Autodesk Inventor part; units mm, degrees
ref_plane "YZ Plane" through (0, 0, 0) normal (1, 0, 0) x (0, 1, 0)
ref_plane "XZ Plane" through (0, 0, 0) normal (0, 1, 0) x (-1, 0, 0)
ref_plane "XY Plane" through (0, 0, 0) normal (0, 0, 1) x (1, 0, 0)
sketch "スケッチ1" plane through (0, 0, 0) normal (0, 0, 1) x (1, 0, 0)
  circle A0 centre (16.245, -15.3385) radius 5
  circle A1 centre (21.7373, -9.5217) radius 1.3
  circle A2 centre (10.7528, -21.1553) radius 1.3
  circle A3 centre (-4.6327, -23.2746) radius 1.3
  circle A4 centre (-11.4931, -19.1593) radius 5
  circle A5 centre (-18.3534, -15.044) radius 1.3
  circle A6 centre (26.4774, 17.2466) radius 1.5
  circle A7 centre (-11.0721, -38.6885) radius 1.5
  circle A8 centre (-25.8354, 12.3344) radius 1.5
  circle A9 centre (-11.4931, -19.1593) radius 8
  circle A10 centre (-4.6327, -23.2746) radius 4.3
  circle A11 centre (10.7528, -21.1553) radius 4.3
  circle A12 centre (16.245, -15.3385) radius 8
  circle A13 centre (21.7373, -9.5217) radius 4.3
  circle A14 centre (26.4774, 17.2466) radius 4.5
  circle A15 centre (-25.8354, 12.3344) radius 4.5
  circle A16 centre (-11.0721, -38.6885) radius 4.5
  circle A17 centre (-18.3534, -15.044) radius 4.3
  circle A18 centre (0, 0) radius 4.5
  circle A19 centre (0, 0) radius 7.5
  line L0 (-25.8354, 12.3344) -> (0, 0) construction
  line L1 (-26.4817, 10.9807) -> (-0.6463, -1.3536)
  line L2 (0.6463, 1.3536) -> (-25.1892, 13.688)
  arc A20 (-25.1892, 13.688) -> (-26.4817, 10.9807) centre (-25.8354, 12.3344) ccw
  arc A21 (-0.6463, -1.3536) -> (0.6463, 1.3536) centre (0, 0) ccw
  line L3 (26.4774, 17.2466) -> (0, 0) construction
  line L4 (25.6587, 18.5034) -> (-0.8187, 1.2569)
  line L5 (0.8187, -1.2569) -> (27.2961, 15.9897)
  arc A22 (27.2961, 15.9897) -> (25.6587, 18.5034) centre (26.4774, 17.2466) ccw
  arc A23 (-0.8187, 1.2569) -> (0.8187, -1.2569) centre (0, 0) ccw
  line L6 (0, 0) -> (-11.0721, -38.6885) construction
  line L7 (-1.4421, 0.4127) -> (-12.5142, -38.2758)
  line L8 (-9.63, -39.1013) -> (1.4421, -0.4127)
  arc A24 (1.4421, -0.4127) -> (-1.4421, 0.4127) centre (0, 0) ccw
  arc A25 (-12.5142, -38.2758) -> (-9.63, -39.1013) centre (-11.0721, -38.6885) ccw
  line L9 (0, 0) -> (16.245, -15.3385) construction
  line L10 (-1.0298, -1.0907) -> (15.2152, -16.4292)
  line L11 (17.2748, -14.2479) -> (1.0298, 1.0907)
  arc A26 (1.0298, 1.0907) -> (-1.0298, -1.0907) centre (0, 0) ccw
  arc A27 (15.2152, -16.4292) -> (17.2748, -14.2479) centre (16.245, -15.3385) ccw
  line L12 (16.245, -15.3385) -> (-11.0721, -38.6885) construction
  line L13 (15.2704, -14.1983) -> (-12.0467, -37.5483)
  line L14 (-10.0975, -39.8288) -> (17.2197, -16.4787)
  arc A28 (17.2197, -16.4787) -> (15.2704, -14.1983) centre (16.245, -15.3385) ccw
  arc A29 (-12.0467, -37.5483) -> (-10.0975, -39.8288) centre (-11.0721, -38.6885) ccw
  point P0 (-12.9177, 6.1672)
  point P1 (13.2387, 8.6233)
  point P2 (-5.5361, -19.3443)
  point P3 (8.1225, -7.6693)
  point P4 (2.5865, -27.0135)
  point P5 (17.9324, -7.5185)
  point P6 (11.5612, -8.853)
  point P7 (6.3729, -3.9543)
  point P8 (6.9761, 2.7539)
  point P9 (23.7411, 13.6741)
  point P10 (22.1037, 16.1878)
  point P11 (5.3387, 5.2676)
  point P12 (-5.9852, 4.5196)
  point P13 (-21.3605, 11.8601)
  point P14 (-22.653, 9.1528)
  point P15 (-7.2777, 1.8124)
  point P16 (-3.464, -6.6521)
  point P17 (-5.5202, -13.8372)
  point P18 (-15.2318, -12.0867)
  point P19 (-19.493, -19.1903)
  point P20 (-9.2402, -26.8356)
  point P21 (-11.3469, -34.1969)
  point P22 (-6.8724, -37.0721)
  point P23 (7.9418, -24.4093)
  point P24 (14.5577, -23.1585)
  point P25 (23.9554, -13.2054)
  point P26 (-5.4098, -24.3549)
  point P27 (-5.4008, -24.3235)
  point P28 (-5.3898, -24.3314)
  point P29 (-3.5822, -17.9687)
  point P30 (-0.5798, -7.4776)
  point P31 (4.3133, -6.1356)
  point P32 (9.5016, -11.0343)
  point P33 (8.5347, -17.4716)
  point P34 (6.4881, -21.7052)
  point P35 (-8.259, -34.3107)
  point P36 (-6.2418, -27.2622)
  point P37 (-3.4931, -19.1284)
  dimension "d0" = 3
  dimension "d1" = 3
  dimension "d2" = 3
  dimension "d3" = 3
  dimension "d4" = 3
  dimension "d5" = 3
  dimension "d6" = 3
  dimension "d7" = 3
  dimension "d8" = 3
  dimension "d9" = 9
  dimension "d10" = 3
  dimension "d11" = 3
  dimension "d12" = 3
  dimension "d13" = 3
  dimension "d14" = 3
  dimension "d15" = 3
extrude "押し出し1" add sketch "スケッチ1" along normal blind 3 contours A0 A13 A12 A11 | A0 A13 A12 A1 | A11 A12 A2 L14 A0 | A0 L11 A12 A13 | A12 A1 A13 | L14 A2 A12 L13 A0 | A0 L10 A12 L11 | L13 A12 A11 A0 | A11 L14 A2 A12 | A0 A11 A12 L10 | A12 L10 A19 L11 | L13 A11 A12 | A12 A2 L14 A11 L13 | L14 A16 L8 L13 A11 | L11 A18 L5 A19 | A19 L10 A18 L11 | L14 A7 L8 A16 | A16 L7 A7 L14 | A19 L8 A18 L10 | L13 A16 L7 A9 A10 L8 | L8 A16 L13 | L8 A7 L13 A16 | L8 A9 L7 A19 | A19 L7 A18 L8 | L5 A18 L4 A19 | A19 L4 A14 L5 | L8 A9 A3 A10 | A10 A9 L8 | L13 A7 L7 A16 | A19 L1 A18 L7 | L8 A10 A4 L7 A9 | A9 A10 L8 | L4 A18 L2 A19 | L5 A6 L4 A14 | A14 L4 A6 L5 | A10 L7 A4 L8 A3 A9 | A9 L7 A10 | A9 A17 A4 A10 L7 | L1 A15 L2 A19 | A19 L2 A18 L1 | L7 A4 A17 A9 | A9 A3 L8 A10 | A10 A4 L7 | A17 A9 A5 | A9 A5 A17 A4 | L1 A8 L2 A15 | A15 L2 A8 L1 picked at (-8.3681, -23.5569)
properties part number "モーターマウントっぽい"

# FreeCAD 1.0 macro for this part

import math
import FreeCAD as App
import Part
import Sketcher

V = App.Vector
Q = App.Units.Quantity

doc = App.newDocument("Part")
body = doc.addObject("PartDesign::Body", "Body")

# Sketch on XY plane
sketch1 = body.newObject("Sketcher::SketchObject", "Sketch")
sketch1.AttachmentSupport = (doc.getObject("XY_Plane"), [""])
sketch1.MapMode = "FlatFace"
sketch1.addGeometry([
    Part.ArcOfCircle(Part.Circle(V(21.737, -9.522, 0), V(0, 0, 1), 4.3), math.radians(-59), math.radians(152)),  # 0
    Part.ArcOfCircle(Part.Circle(V(16.245, -15.338, 0), V(0, 0, 1), 8), math.radians(78), math.radians(126)),  # 1
    Part.LineSegment(V(11.561, -8.853, 0), V(6.373, -3.954, 0)),  # 2
    Part.ArcOfCircle(Part.Circle(V(0, 0, 0), V(0, 0, 1), 7.5), math.radians(-32), math.radians(22)),  # 3
    Part.LineSegment(V(6.976, 2.754, 0), V(23.741, 13.674, 0)),  # 4
    Part.ArcOfCircle(Part.Circle(V(26.477, 17.247, 0), V(0, 0, 1), 4.5), math.radians(-127), math.radians(194)),  # 5
    Part.LineSegment(V(22.104, 16.188, 0), V(5.339, 5.268, 0)),  # 6
    Part.ArcOfCircle(Part.Circle(V(0, 0, 0), V(0, 0, 1), 7.5), math.radians(45), math.radians(143)),  # 7
    Part.LineSegment(V(-5.985, 4.52, 0), V(-21.36, 11.86, 0)),  # 8
    Part.ArcOfCircle(Part.Circle(V(-25.835, 12.334, 0), V(0, 0, 1), 4.5), math.radians(-6), math.radians(315)),  # 9
    Part.LineSegment(V(-22.653, 9.153, 0), V(-7.278, 1.812, 0)),  # 10
    Part.ArcOfCircle(Part.Circle(V(0, 0, 0), V(0, 0, 1), 7.5), math.radians(166), math.radians(242)),  # 11
    Part.LineSegment(V(-3.464, -6.652, 0), V(-5.52, -13.837, 0)),  # 12
    Part.ArcOfCircle(Part.Circle(V(-11.493, -19.159, 0), V(0, 0, 1), 8), math.radians(42), math.radians(118)),  # 13
    Part.ArcOfCircle(Part.Circle(V(-18.353, -15.044, 0), V(0, 0, 1), 4.3), math.radians(43), math.radians(255)),  # 14
    Part.ArcOfCircle(Part.Circle(V(-11.493, -19.159, 0), V(0, 0, 1), 8), math.radians(-180), math.radians(-74)),  # 15
    Part.LineSegment(V(-9.24, -26.836, 0), V(-11.347, -34.197, 0)),  # 16
    Part.ArcOfCircle(Part.Circle(V(-11.072, -38.688, 0), V(0, 0, 1), 4.5), math.radians(94), math.radians(381)),  # 17
    Part.LineSegment(V(-6.872, -37.072, 0), V(7.942, -24.409, 0)),  # 18
    Part.ArcOfCircle(Part.Circle(V(10.753, -21.155, 0), V(0, 0, 1), 4.3), math.radians(-131), math.radians(-28)),  # 19
    Part.ArcOfCircle(Part.Circle(V(16.245, -15.338, 0), V(0, 0, 1), 8), math.radians(-102), math.radians(15)),  # 20
    Part.Circle(V(16.245, -15.338, 0), V(0, 0, 1), 5),  # 21
    Part.Circle(V(21.737, -9.522, 0), V(0, 0, 1), 1.3),  # 22
    Part.Circle(V(10.753, -21.155, 0), V(0, 0, 1), 1.3),  # 23
    Part.ArcOfCircle(Part.Circle(V(16.245, -15.338, 0), V(0, 0, 1), 8), math.radians(147), math.radians(195)),  # 24
    Part.ArcOfCircle(Part.Circle(V(10.753, -21.155, 0), V(0, 0, 1), 4.3), math.radians(121), math.radians(187)),  # 25
    Part.LineSegment(V(6.488, -21.705, 0), V(-8.259, -34.311, 0)),  # 26
    Part.LineSegment(V(-8.259, -34.311, 0), V(-6.242, -27.262, 0)),  # 27
    Part.ArcOfCircle(Part.Circle(V(-4.633, -23.275, 0), V(0, 0, 1), 4.3), math.radians(-112), math.radians(75)),  # 28
    Part.ArcOfCircle(Part.Circle(V(-11.493, -19.159, 0), V(0, 0, 1), 8), math.radians(0.22), math.radians(8.56)),  # 29
    Part.LineSegment(V(-3.582, -17.969, 0), V(-0.58, -7.478, 0)),  # 30
    Part.ArcOfCircle(Part.Circle(V(0, 0, 0), V(0, 0, 1), 7.5), math.radians(-94), math.radians(-55)),  # 31
    Part.LineSegment(V(4.313, -6.136, 0), V(9.502, -11.034, 0)),  # 32
    Part.Circle(V(0, 0, 0), V(0, 0, 1), 4.5),  # 33
    Part.Circle(V(-11.072, -38.688, 0), V(0, 0, 1), 1.5),  # 34
    Part.LineSegment(V(-5.41, -24.355, 0), V(-5.401, -24.323, 0)),  # 35
    Part.ArcOfCircle(Part.Circle(V(-4.633, -23.275, 0), V(0, 0, 1), 1.3), math.radians(-126), math.radians(234)),  # 36
    Part.ArcOfCircle(Part.Circle(V(-11.493, -19.159, 0), V(0, 0, 1), 8), math.radians(-40.5), math.radians(-40.28)),  # 37
    Part.Circle(V(-11.493, -19.159, 0), V(0, 0, 1), 5),  # 38
    Part.Circle(V(26.477, 17.247, 0), V(0, 0, 1), 1.5),  # 39
    Part.Circle(V(-18.353, -15.044, 0), V(0, 0, 1), 1.3),  # 40
    Part.Circle(V(-25.835, 12.334, 0), V(0, 0, 1), 1.5),  # 41
], False)
sketch1.addConstraint([
    Sketcher.Constraint("Coincident", 0, 2, 1, 1),
    Sketcher.Constraint("Coincident", 1, 2, 2, 1),
    Sketcher.Constraint("Coincident", 2, 2, 3, 1),
    Sketcher.Constraint("Coincident", 3, 2, 4, 1),
    Sketcher.Constraint("Coincident", 4, 2, 5, 1),
    Sketcher.Constraint("Coincident", 5, 2, 6, 1),
    Sketcher.Constraint("Coincident", 6, 2, 7, 1),
    Sketcher.Constraint("Coincident", 7, 2, 8, 1),
    Sketcher.Constraint("Coincident", 8, 2, 9, 1),
    Sketcher.Constraint("Coincident", 9, 2, 10, 1),
    Sketcher.Constraint("Coincident", 10, 2, 11, 1),
    Sketcher.Constraint("Coincident", 11, 2, 12, 1),
    Sketcher.Constraint("Coincident", 12, 2, 13, 1),
    Sketcher.Constraint("Coincident", 13, 2, 14, 1),
    Sketcher.Constraint("Coincident", 14, 2, 15, 1),
    Sketcher.Constraint("Coincident", 15, 2, 16, 1),
    Sketcher.Constraint("Coincident", 16, 2, 17, 1),
    Sketcher.Constraint("Coincident", 17, 2, 18, 1),
    Sketcher.Constraint("Coincident", 18, 2, 19, 1),
    Sketcher.Constraint("Coincident", 19, 2, 20, 1),
    Sketcher.Constraint("Coincident", 20, 2, 0, 1),
    Sketcher.Constraint("Coincident", 24, 2, 25, 1),
    Sketcher.Constraint("Coincident", 25, 2, 26, 1),
    Sketcher.Constraint("Coincident", 26, 2, 27, 1),
    Sketcher.Constraint("Coincident", 27, 2, 28, 1),
    Sketcher.Constraint("Coincident", 28, 2, 29, 1),
    Sketcher.Constraint("Coincident", 29, 2, 30, 1),
    Sketcher.Constraint("Coincident", 30, 2, 31, 1),
    Sketcher.Constraint("Coincident", 31, 2, 32, 1),
    Sketcher.Constraint("Coincident", 32, 2, 24, 1),
    Sketcher.Constraint("Coincident", 35, 2, 36, 2),
    Sketcher.Constraint("Coincident", 36, 1, 37, 2),
    Sketcher.Constraint("Coincident", 37, 1, 35, 1),
    Sketcher.Constraint("Coincident", 3, 3, -1, 1),
    Sketcher.Constraint("Coincident", 7, 3, -1, 1),
    Sketcher.Constraint("Coincident", 11, 3, -1, 1),
    Sketcher.Constraint("Coincident", 31, 3, -1, 1),
    Sketcher.Constraint("Coincident", 33, 3, -1, 1),
    Sketcher.Constraint("Coincident", 15, 3, 13, 3),
    Sketcher.Constraint("Coincident", 20, 3, 1, 3),
    Sketcher.Constraint("Coincident", 21, 3, 1, 3),
    Sketcher.Constraint("Coincident", 22, 3, 0, 3),
    Sketcher.Constraint("Coincident", 23, 3, 19, 3),
    Sketcher.Constraint("Coincident", 24, 3, 1, 3),
    Sketcher.Constraint("Coincident", 25, 3, 19, 3),
    Sketcher.Constraint("Coincident", 29, 3, 13, 3),
    Sketcher.Constraint("Coincident", 34, 3, 17, 3),
    Sketcher.Constraint("Coincident", 36, 3, 28, 3),
    Sketcher.Constraint("Coincident", 37, 3, 13, 3),
    Sketcher.Constraint("Coincident", 38, 3, 13, 3),
    Sketcher.Constraint("Coincident", 39, 3, 5, 3),
    Sketcher.Constraint("Coincident", 40, 3, 14, 3),
    Sketcher.Constraint("Coincident", 41, 3, 9, 3),
    Sketcher.Constraint("Equal", 3, 7),
    Sketcher.Constraint("Equal", 5, 9),
    Sketcher.Constraint("Equal", 7, 11),
    Sketcher.Constraint("Equal", 1, 13),
    Sketcher.Constraint("Equal", 0, 14),
    Sketcher.Constraint("Equal", 13, 15),
    Sketcher.Constraint("Equal", 9, 17),
    Sketcher.Constraint("Equal", 14, 19),
    Sketcher.Constraint("Equal", 15, 20),
    Sketcher.Constraint("Equal", 22, 23),
    Sketcher.Constraint("Equal", 20, 24),
    Sketcher.Constraint("Equal", 19, 25),
    Sketcher.Constraint("Equal", 25, 28),
    Sketcher.Constraint("Equal", 24, 29),
    Sketcher.Constraint("Equal", 11, 31),
    Sketcher.Constraint("Equal", 17, 33),
    Sketcher.Constraint("Equal", 23, 36),
    Sketcher.Constraint("Equal", 29, 37),
    Sketcher.Constraint("Equal", 21, 38),
    Sketcher.Constraint("Equal", 34, 39),
    Sketcher.Constraint("Equal", 36, 40),
    Sketcher.Constraint("Equal", 39, 41),
    Sketcher.Constraint("Parallel", 4, 6),
    Sketcher.Constraint("Parallel", 8, 10),
    Sketcher.Constraint("Parallel", 12, 16),
    Sketcher.Constraint("Parallel", 18, 26),
    Sketcher.Constraint("Parallel", 16, 27),
    Sketcher.Constraint("Parallel", 27, 30),
    Sketcher.Constraint("Parallel", 2, 32),
    Sketcher.Constraint("Parallel", 30, 35),
    Sketcher.Constraint("Equal", 4, 6),
    Sketcher.Constraint("Equal", 8, 10),
    Sketcher.Constraint("Equal", 2, 32),
    Sketcher.Constraint("Diameter", 33, Q("9 mm")),
    Sketcher.Constraint("Diameter", 34, Q("3 mm")),
    Sketcher.Constraint("Diameter", 21, Q("10 mm")),
    Sketcher.Constraint("Radius", 1, Q("8 mm")),
    Sketcher.Constraint("Diameter", 22, Q("2.6 mm")),
    Sketcher.Constraint("Radius", 0, Q("4.3 mm")),
    Sketcher.Constraint("Radius", 3, Q("7.5 mm")),
    Sketcher.Constraint("Angle", 4, Q("33.079 deg")),
    Sketcher.Constraint("Angle", 8, Q("154.4792 deg")),
    Sketcher.Constraint("Angle", 12, Q("-105.9704 deg")),
    Sketcher.Constraint("DistanceY", -1, 1, 8, 2, Q("11.86 mm")),
    Sketcher.Constraint("Distance", 4, Q("20.008 mm")),
    Sketcher.Constraint("Distance", 16, Q("7.657 mm")),
    Sketcher.Constraint("DistanceX", -1, 1, 1, 3, Q("16.245 mm")),
    Sketcher.Constraint("DistanceX", 13, 3, -1, 1, Q("11.493 mm")),
    Sketcher.Constraint("DistanceY", 14, 3, -1, 1, Q("15.044 mm")),
    Sketcher.Constraint("DistanceX", 17, 3, -1, 1, Q("11.072 mm")),
    Sketcher.Constraint("DistanceY", 1, 2, -1, 1, Q("8.853 mm")),
    Sketcher.Constraint("DistanceX", -1, 1, 2, 2, Q("6.373 mm")),
    Sketcher.Constraint("DistanceX", -1, 1, 3, 2, Q("6.976 mm")),
    Sketcher.Constraint("DistanceX", 9, 2, -1, 1, Q("22.653 mm")),
    Sketcher.Constraint("DistanceX", 11, 2, -1, 1, Q("3.464 mm")),
    Sketcher.Constraint("DistanceY", 16, 2, -1, 1, Q("34.197 mm")),
    Sketcher.Constraint("DistanceY", 17, 2, -1, 1, Q("37.072 mm")),
    Sketcher.Constraint("DistanceX", -1, 1, 25, 2, Q("6.488 mm")),
    Sketcher.Constraint("DistanceX", 26, 2, -1, 1, Q("8.259 mm")),
    Sketcher.Constraint("Distance", 2, Q("7.1355 mm")),
    Sketcher.Constraint("Distance", 8, Q("17.0376 mm")),
    Sketcher.Constraint("Distance", 12, Q("7.4735 mm")),
    Sketcher.Constraint("Distance", 18, Q("19.4887 mm")),
    Sketcher.Constraint("Distance", 26, Q("19.4004 mm")),
    Sketcher.Constraint("Distance", 27, Q("7.3314 mm")),
    Sketcher.Constraint("Distance", 30, Q("10.9124 mm")),
    Sketcher.Constraint("Distance", 35, Q("0.0326 mm")),
    Sketcher.Constraint("DistanceX", -1, 1, 0, 3, Q("21.7373 mm")),
    Sketcher.Constraint("DistanceY", 0, 3, -1, 1, Q("9.5217 mm")),
    Sketcher.Constraint("DistanceX", -1, 1, 5, 3, Q("26.4774 mm")),
    Sketcher.Constraint("DistanceX", 14, 3, -1, 1, Q("18.3534 mm")),
    Sketcher.Constraint("DistanceX", -1, 1, 19, 3, Q("10.7528 mm")),
    Sketcher.Constraint("DistanceX", 28, 3, -1, 1, Q("4.6327 mm")),
])
pad1 = body.newObject("PartDesign::Pad", "Pad")
pad1.Profile = sketch1
pad1.Length = 3

doc.recompute()
